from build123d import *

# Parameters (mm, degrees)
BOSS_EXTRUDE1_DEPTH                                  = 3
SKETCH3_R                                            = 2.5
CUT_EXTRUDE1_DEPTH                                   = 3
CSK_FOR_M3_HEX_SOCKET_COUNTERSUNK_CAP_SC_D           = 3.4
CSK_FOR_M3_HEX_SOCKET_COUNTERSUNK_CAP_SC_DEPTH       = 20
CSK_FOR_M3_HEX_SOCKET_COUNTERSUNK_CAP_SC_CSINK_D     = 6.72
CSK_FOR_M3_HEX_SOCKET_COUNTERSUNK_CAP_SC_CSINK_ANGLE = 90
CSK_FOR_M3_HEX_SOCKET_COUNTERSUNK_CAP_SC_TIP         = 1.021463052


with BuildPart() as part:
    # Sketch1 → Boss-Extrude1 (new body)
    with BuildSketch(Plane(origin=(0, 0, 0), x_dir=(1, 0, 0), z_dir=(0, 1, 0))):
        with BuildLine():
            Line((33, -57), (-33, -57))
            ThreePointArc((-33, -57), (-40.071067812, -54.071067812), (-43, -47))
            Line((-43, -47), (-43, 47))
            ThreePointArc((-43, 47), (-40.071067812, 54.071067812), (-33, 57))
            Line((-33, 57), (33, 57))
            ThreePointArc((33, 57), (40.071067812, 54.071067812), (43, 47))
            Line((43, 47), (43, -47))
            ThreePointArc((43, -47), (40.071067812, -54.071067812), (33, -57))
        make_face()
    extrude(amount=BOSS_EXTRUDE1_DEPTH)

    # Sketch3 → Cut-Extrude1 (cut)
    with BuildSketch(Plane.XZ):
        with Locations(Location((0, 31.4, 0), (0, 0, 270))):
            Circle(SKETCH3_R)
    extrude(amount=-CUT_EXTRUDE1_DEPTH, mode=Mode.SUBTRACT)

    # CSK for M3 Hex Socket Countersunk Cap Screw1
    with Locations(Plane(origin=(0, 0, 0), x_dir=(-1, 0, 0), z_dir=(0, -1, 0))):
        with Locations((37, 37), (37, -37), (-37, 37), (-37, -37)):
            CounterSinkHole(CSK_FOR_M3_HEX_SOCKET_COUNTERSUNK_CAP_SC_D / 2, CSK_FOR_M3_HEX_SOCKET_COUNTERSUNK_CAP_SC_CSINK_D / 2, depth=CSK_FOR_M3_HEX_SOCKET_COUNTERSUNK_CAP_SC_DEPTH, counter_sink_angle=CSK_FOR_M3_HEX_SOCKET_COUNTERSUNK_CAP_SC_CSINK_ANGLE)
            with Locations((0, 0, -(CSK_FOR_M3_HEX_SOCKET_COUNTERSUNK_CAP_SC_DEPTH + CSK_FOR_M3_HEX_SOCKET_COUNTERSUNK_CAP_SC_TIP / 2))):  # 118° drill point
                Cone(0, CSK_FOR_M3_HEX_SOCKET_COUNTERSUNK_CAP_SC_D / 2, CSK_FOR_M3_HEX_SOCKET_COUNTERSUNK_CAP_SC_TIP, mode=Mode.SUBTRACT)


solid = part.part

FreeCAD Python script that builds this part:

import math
import FreeCAD as App
import Part
import Sketcher
Q = App.Units.Quantity

doc = App.newDocument("Part")
body = doc.addObject("PartDesign::Body", "Body")

# Sketch on XZ plane
sketch1 = body.newObject("Sketcher::SketchObject", "Sketch")
sketch1.AttachmentSupport = (doc.getObject("XZ_Plane"), [""])
sketch1.MapMode = "FlatFace"
sketch1.addGeometry([
    Part.LineSegment(App.Vector(-33, 57, 0), App.Vector(33, 57, 0)),  # 0
    Part.ArcOfCircle(Part.Circle(App.Vector(33, 47, 0), App.Vector(0, 0, 1), 10), math.radians(0), math.radians(90)),  # 1
    Part.LineSegment(App.Vector(43, 47, 0), App.Vector(43, -47, 0)),  # 2
    Part.ArcOfCircle(Part.Circle(App.Vector(33, -47, 0), App.Vector(0, 0, 1), 10), math.radians(-90), math.radians(0)),  # 3
    Part.LineSegment(App.Vector(33, -57, 0), App.Vector(-33, -57, 0)),  # 4
    Part.ArcOfCircle(Part.Circle(App.Vector(-33, -47, 0), App.Vector(0, 0, 1), 10), math.radians(180), math.radians(270)),  # 5
    Part.LineSegment(App.Vector(-43, -47, 0), App.Vector(-43, 47, 0)),  # 6
    Part.ArcOfCircle(Part.Circle(App.Vector(-33, 47, 0), App.Vector(0, 0, 1), 10), math.radians(90), math.radians(180)),  # 7
], False)
sketch1.addConstraint([
    Sketcher.Constraint("Tangent", 0, 2, 1, 2),
    Sketcher.Constraint("Tangent", 1, 1, 2, 1),
    Sketcher.Constraint("Tangent", 2, 2, 3, 2),
    Sketcher.Constraint("Tangent", 3, 1, 4, 1),
    Sketcher.Constraint("Tangent", 4, 2, 5, 2),
    Sketcher.Constraint("Tangent", 5, 1, 6, 1),
    Sketcher.Constraint("Tangent", 6, 2, 7, 2),
    Sketcher.Constraint("Tangent", 7, 1, 0, 1),
    Sketcher.Constraint("Horizontal", 0),
    Sketcher.Constraint("Vertical", 2),
    Sketcher.Constraint("Horizontal", 4),
    Sketcher.Constraint("Vertical", 6),
    Sketcher.Constraint("Equal", 1, 3),
    Sketcher.Constraint("Equal", 3, 5),
    Sketcher.Constraint("Equal", 5, 7),
    Sketcher.Constraint("Symmetric", 1, 3, 5, 3, -1, 1),
    Sketcher.Constraint("Radius", 1, Q("10 mm")),
    Sketcher.Constraint("DistanceX", 0, 1, 0, 2, Q("66 mm")),
    Sketcher.Constraint("DistanceY", 2, 2, 2, 1, Q("94 mm")),
])
pad1 = body.newObject("PartDesign::Pad", "Pad")
pad1.Profile = sketch1
pad1.Length = 3
pad1.Reversed = True

# Sketch on XZ plane
sketch2 = body.newObject("Sketcher::SketchObject", "Sketch001")
sketch2.AttachmentSupport = (doc.getObject("XZ_Plane"), [""])
sketch2.MapMode = "FlatFace"
sketch2.addGeometry(Part.Circle(App.Vector(0, 31.4, 0), App.Vector(0, 0, 1), 2.5), False)
sketch2.addConstraint([
    Sketcher.Constraint("PointOnObject", 0, 3, -2),
    Sketcher.Constraint("Diameter", 0, Q("5 mm")),
    Sketcher.Constraint("DistanceY", -1, 1, 0, 3, Q("31.4 mm")),
])
pocket1 = body.newObject("PartDesign::Pocket", "Pocket")
pocket1.Profile = sketch2
pocket1.Length = 3

# Sketch on XZ plane
sketch3 = body.newObject("Sketcher::SketchObject", "Sketch002")
sketch3.AttachmentSupport = (doc.getObject("XZ_Plane"), [""])
sketch3.MapMode = "FlatFace"
sketch3.addGeometry([
    Part.Circle(App.Vector(-37, -37, 0), App.Vector(0, 0, 1), 1.7),
    Part.Circle(App.Vector(-37, 37, 0), App.Vector(0, 0, 1), 1.7),
    Part.Circle(App.Vector(37, -37, 0), App.Vector(0, 0, 1), 1.7),
    Part.Circle(App.Vector(37, 37, 0), App.Vector(0, 0, 1), 1.7),
], False)
sketch3.addConstraint([
    Sketcher.Constraint("Equal", 0, 1),
    Sketcher.Constraint("Equal", 1, 2),
    Sketcher.Constraint("Equal", 2, 3),
    Sketcher.Constraint("Symmetric", 1, 3, 2, 3, -1, 1),
    Sketcher.Constraint("Symmetric", 0, 3, 3, 3, -1, 1),
    Sketcher.Constraint("Symmetric", 0, 3, 2, 3, -2),
    Sketcher.Constraint("Diameter", 0, Q("3.4 mm")),
    Sketcher.Constraint("DistanceX", 0, 3, -1, 1, Q("37 mm")),
    Sketcher.Constraint("DistanceY", 0, 3, -1, 1, Q("37 mm")),
])
doc.recompute()
hole = body.newObject("PartDesign::Hole", "Hole")
hole.Profile = sketch3
hole.ThreadType = "None"
hole.Diameter = 3.4
hole.DepthType = "Dimension"
hole.Depth = 20
hole.DrillPoint = "Angled"
hole.DrillPointAngle = 118
hole.HoleCutType = "Countersink"
hole.HoleCutDiameter = 6.72
hole.HoleCutCountersinkAngle = 90

doc.recompute()
